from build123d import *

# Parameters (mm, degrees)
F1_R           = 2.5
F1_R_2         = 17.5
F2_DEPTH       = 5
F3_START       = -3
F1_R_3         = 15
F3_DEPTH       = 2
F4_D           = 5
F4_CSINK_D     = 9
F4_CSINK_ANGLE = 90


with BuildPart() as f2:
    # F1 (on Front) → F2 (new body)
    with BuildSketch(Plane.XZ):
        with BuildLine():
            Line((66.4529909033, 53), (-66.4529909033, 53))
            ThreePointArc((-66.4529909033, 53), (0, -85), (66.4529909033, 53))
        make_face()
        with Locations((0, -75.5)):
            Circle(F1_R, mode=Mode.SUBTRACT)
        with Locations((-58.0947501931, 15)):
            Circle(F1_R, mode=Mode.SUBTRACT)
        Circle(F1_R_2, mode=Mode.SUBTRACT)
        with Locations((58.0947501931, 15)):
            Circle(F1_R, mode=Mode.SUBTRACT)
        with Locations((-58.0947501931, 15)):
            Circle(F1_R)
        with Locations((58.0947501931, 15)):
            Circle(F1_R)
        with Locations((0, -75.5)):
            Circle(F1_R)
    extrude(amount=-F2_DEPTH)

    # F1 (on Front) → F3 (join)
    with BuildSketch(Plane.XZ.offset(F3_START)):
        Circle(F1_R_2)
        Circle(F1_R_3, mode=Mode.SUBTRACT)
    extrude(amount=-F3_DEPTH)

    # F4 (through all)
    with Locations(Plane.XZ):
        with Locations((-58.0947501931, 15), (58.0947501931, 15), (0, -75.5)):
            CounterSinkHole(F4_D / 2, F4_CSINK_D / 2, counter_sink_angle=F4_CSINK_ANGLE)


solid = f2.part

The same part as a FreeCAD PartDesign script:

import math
import FreeCAD as App
import Part
import Sketcher

V = App.Vector
Q = App.Units.Quantity

doc = App.newDocument("Part")
body = doc.addObject("PartDesign::Body", "Body")

# Sketch on XZ plane
sketch1 = body.newObject("Sketcher::SketchObject", "Sketch")
sketch1.AttachmentSupport = (doc.getObject("XZ_Plane"), [""])
sketch1.MapMode = "FlatFace"
sketch1.addGeometry(Part.LineSegment(V(66, 53, 0), V(-66, 53, 0)), False)
sketch1.addGeometry(Part.ArcOfCircle(Part.Circle(V(0, 0, 0), V(0, 0, 1), 85), math.radians(141), math.radians(399)), False)
sketch1.addGeometry(Part.Circle(V(0, 0, 0), V(0, 0, 1), 18), False)
sketch1.addConstraint(Sketcher.Constraint("Coincident", 0, 1, 1, 2))
sketch1.addConstraint(Sketcher.Constraint("Coincident", 1, 1, 0, 2))
sketch1.addConstraint(Sketcher.Constraint("Horizontal", 0))
sketch1.addConstraint(Sketcher.Constraint("Coincident", 1, 3, -1, 1))
sketch1.addConstraint(Sketcher.Constraint("Coincident", 2, 3, -1, 1))
sketch1.addConstraint(Sketcher.Constraint("Diameter", 2, Q("35 mm")))
sketch1.addConstraint(Sketcher.Constraint("Radius", 1, Q("85 mm")))
sketch1.addConstraint(Sketcher.Constraint("DistanceY", -1, 1, 0, 1, Q("53 mm")))
pad1 = body.newObject("PartDesign::Pad", "Pad")
pad1.Profile = sketch1
pad1.Length = 5
pad1.Reversed = True

# Sketch on XZ plane
sketch2 = body.newObject("Sketcher::SketchObject", "Sketch001")
sketch2.AttachmentSupport = (doc.getObject("XZ_Plane"), [""])
sketch2.MapMode = "FlatFace"
sketch2.AttachmentOffset = App.Placement(V(0, 0, -3), App.Rotation())
sketch2.addGeometry(Part.Circle(V(0, 0, 0), V(0, 0, 1), 18), False)
sketch2.addGeometry(Part.Circle(V(0, 0, 0), V(0, 0, 1), 15), False)
sketch2.addConstraint(Sketcher.Constraint("Coincident", 0, 3, -1, 1))
sketch2.addConstraint(Sketcher.Constraint("Coincident", 1, 3, -1, 1))
sketch2.addConstraint(Sketcher.Constraint("Diameter", 0, Q("35 mm")))
sketch2.addConstraint(Sketcher.Constraint("Diameter", 1, Q("30 mm")))
pad2 = body.newObject("PartDesign::Pad", "Pad001")
pad2.Profile = sketch2
pad2.Length = 2
pad2.Reversed = True

# Sketch on XZ plane
sketch3 = body.newObject("Sketcher::SketchObject", "Sketch002")
sketch3.AttachmentSupport = (doc.getObject("XZ_Plane"), [""])
sketch3.MapMode = "FlatFace"
sketch3.addGeometry(Part.Circle(V(-58.1, 15, 0), V(0, 0, 1), 2.5), False)
sketch3.addGeometry(Part.Circle(V(58.1, 15, 0), V(0, 0, 1), 2.5), False)
sketch3.addGeometry(Part.Circle(V(0, -75.5, 0), V(0, 0, 1), 2.5), False)
sketch3.addConstraint(Sketcher.Constraint("Equal", 0, 1))
sketch3.addConstraint(Sketcher.Constraint("Equal", 1, 2))
sketch3.addConstraint(Sketcher.Constraint("Symmetric", 0, 3, 1, 3, -2))
sketch3.addConstraint(Sketcher.Constraint("PointOnObject", 2, 3, -2))
sketch3.addConstraint(Sketcher.Constraint("Diameter", 0, Q("5 mm")))
sketch3.addConstraint(Sketcher.Constraint("DistanceY", -1, 1, 0, 3, Q("15 mm")))
sketch3.addConstraint(Sketcher.Constraint("DistanceY", 2, 3, -1, 1, Q("75.5 mm")))
sketch3.addConstraint(Sketcher.Constraint("DistanceX", 0, 3, 1, 3, Q("116.1895 mm")))
doc.recompute()
hole = body.newObject("PartDesign::Hole", "Hole")
hole.Profile = sketch3
hole.ThreadType = "None"
hole.Diameter = 5
hole.DepthType = "ThroughAll"
hole.HoleCutType = "Countersink"
hole.HoleCutDiameter = 9
hole.HoleCutCountersinkAngle = 90

doc.recompute()
